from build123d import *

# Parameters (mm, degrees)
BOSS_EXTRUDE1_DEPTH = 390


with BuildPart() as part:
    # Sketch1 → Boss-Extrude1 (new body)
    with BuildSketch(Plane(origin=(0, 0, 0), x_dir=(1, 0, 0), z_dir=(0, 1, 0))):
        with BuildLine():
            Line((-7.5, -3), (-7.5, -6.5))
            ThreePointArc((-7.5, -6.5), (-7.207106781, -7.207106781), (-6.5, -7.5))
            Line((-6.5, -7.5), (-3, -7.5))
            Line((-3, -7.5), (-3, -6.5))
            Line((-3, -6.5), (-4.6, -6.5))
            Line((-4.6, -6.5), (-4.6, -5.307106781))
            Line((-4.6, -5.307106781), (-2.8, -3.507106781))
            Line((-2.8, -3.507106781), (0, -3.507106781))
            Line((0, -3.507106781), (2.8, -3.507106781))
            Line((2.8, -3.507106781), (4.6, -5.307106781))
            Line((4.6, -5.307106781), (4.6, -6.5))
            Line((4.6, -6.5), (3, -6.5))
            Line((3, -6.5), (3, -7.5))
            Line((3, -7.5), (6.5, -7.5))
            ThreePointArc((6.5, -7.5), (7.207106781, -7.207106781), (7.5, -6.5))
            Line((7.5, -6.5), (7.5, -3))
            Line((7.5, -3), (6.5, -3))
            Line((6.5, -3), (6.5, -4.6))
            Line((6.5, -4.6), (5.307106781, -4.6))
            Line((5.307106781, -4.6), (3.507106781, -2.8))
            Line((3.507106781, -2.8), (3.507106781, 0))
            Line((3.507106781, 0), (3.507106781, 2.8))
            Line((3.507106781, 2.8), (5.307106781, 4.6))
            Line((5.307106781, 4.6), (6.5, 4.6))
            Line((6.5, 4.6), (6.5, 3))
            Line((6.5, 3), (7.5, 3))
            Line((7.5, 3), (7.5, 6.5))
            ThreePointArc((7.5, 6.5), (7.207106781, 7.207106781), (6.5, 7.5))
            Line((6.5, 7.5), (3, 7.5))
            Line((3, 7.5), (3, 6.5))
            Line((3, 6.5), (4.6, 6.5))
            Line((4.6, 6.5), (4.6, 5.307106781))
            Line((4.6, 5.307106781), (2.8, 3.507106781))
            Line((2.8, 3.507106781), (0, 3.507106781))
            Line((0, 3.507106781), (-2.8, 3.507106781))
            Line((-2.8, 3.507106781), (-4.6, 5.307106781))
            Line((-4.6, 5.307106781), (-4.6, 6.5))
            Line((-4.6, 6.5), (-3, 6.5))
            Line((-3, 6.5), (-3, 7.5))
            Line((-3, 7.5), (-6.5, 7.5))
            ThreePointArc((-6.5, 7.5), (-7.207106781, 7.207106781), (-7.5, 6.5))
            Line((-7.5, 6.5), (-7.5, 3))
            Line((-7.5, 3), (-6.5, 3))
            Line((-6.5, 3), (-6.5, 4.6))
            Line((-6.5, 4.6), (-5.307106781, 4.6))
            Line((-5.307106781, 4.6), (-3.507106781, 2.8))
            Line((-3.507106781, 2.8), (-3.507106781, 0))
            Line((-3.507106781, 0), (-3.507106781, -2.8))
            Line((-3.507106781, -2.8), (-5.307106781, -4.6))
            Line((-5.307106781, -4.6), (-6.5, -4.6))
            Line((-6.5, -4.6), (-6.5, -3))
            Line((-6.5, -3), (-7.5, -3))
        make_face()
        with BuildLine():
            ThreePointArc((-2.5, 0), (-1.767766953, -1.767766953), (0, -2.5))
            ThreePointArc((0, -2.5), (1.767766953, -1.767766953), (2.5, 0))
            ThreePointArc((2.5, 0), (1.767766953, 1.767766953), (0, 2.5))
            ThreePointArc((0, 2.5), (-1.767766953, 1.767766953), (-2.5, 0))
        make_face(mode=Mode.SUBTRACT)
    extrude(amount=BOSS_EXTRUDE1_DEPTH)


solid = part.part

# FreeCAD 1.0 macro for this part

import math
import FreeCAD as App
import Part
import Sketcher
from FreeCAD import Vector

doc = App.newDocument("Part")
body = doc.addObject("PartDesign::Body", "Body")

sketch1 = body.newObject("Sketcher::SketchObject", "Sketch")
sketch1.AttachmentSupport = (doc.getObject("XZ_Plane"), [""])
sketch1.MapMode = "FlatFace"
sketch1.addGeometry(Part.LineSegment(Vector(-7.5, 3, 0), Vector(-7.5, 6.5, 0)), False)
sketch1.addGeometry(Part.ArcOfCircle(Part.Circle(Vector(-6.5, 6.5, 0), Vector(0, 0, 1), 1), math.radians(90), math.radians(180)), False)
sketch1.addGeometry(Part.LineSegment(Vector(-6.5, 7.5, 0), Vector(-3, 7.5, 0)), False)
sketch1.addGeometry(Part.LineSegment(Vector(-3, 7.5, 0), Vector(-3, 6.5, 0)), False)
sketch1.addGeometry(Part.LineSegment(Vector(-3, 6.5, 0), Vector(-4.6, 6.5, 0)), False)
sketch1.addGeometry(Part.LineSegment(Vector(-4.6, 6.5, 0), Vector(-4.6, 5.3, 0)), False)
sketch1.addGeometry(Part.LineSegment(Vector(-4.6, 5.3, 0), Vector(-2.8, 3.5, 0)), False)
sketch1.addGeometry(Part.LineSegment(Vector(-2.8, 3.5, 0), Vector(2.8, 3.5, 0)), False)
sketch1.addGeometry(Part.LineSegment(Vector(2.8, 3.5, 0), Vector(4.6, 5.3, 0)), False)
sketch1.addGeometry(Part.LineSegment(Vector(4.6, 5.3, 0), Vector(4.6, 6.5, 0)), False)
sketch1.addGeometry(Part.LineSegment(Vector(4.6, 6.5, 0), Vector(3, 6.5, 0)), False)
sketch1.addGeometry(Part.LineSegment(Vector(3, 6.5, 0), Vector(3, 7.5, 0)), False)
sketch1.addGeometry(Part.LineSegment(Vector(3, 7.5, 0), Vector(6.5, 7.5, 0)), False)
sketch1.addGeometry(Part.ArcOfCircle(Part.Circle(Vector(6.5, 6.5, 0), Vector(0, 0, 1), 1), math.radians(0), math.radians(90)), False)
sketch1.addGeometry(Part.LineSegment(Vector(7.5, 6.5, 0), Vector(7.5, 3, 0)), False)
sketch1.addGeometry(Part.LineSegment(Vector(7.5, 3, 0), Vector(6.5, 3, 0)), False)
sketch1.addGeometry(Part.LineSegment(Vector(6.5, 3, 0), Vector(6.5, 4.6, 0)), False)
sketch1.addGeometry(Part.LineSegment(Vector(6.5, 4.6, 0), Vector(5.3, 4.6, 0)), False)
sketch1.addGeometry(Part.LineSegment(Vector(5.3, 4.6, 0), Vector(3.5, 2.8, 0)), False)
sketch1.addGeometry(Part.LineSegment(Vector(3.5, 2.8, 0), Vector(3.5, -2.8, 0)), False)
sketch1.addGeometry(Part.LineSegment(Vector(3.5, -2.8, 0), Vector(5.3, -4.6, 0)), False)
sketch1.addGeometry(Part.LineSegment(Vector(5.3, -4.6, 0), Vector(6.5, -4.6, 0)), False)
sketch1.addGeometry(Part.LineSegment(Vector(6.5, -4.6, 0), Vector(6.5, -3, 0)), False)
sketch1.addGeometry(Part.LineSegment(Vector(6.5, -3, 0), Vector(7.5, -3, 0)), False)
sketch1.addGeometry(Part.LineSegment(Vector(7.5, -3, 0), Vector(7.5, -6.5, 0)), False)
sketch1.addGeometry(Part.ArcOfCircle(Part.Circle(Vector(6.5, -6.5, 0), Vector(0, 0, 1), 1), math.radians(-90), math.radians(0)), False)
sketch1.addGeometry(Part.LineSegment(Vector(6.5, -7.5, 0), Vector(3, -7.5, 0)), False)
sketch1.addGeometry(Part.LineSegment(Vector(3, -7.5, 0), Vector(3, -6.5, 0)), False)
sketch1.addGeometry(Part.LineSegment(Vector(3, -6.5, 0), Vector(4.6, -6.5, 0)), False)
sketch1.addGeometry(Part.LineSegment(Vector(4.6, -6.5, 0), Vector(4.6, -5.3, 0)), False)
sketch1.addGeometry(Part.LineSegment(Vector(4.6, -5.3, 0), Vector(2.8, -3.5, 0)), False)
sketch1.addGeometry(Part.LineSegment(Vector(2.8, -3.5, 0), Vector(-2.8, -3.5, 0)), False)
sketch1.addGeometry(Part.LineSegment(Vector(-2.8, -3.5, 0), Vector(-4.6, -5.3, 0)), False)
sketch1.addGeometry(Part.LineSegment(Vector(-4.6, -5.3, 0), Vector(-4.6, -6.5, 0)), False)
sketch1.addGeometry(Part.LineSegment(Vector(-4.6, -6.5, 0), Vector(-3, -6.5, 0)), False)
sketch1.addGeometry(Part.LineSegment(Vector(-3, -6.5, 0), Vector(-3, -7.5, 0)), False)
sketch1.addGeometry(Part.LineSegment(Vector(-3, -7.5, 0), Vector(-6.5, -7.5, 0)), False)
sketch1.addGeometry(Part.ArcOfCircle(Part.Circle(Vector(-6.5, -6.5, 0), Vector(0, 0, 1), 1), math.radians(-180), math.radians(-90)), False)
sketch1.addGeometry(Part.LineSegment(Vector(-7.5, -6.5, 0), Vector(-7.5, -3, 0)), False)
sketch1.addGeometry(Part.LineSegment(Vector(-7.5, -3, 0), Vector(-6.5, -3, 0)), False)
sketch1.addGeometry(Part.LineSegment(Vector(-6.5, -3, 0), Vector(-6.5, -4.6, 0)), False)
sketch1.addGeometry(Part.LineSegment(Vector(-6.5, -4.6, 0), Vector(-5.3, -4.6, 0)), False)
sketch1.addGeometry(Part.LineSegment(Vector(-5.3, -4.6, 0), Vector(-3.5, -2.8, 0)), False)
sketch1.addGeometry(Part.LineSegment(Vector(-3.5, -2.8, 0), Vector(-3.5, 2.8, 0)), False)
sketch1.addGeometry(Part.LineSegment(Vector(-3.5, 2.8, 0), Vector(-5.3, 4.6, 0)), False)
sketch1.addGeometry(Part.LineSegment(Vector(-5.3, 4.6, 0), Vector(-6.5, 4.6, 0)), False)
sketch1.addGeometry(Part.LineSegment(Vector(-6.5, 4.6, 0), Vector(-6.5, 3, 0)), False)
sketch1.addGeometry(Part.LineSegment(Vector(-6.5, 3, 0), Vector(-7.5, 3, 0)), False)
sketch1.addGeometry(Part.ArcOfCircle(Part.Circle(Vector(0, 0, 0), Vector(0, 0, 1), 2.5), math.radians(90), math.radians(180)), False)
sketch1.addGeometry(Part.ArcOfCircle(Part.Circle(Vector(0, 0, 0), Vector(0, 0, 1), 2.5), math.radians(180), math.radians(270)), False)
sketch1.addGeometry(Part.ArcOfCircle(Part.Circle(Vector(0, 0, 0), Vector(0, 0, 1), 2.5), math.radians(-90), math.radians(0)), False)
sketch1.addGeometry(Part.ArcOfCircle(Part.Circle(Vector(0, 0, 0), Vector(0, 0, 1), 2.5), math.radians(0), math.radians(90)), False)
sketch1.addConstraint(Sketcher.Constraint("Tangent", 0, 2, 1, 2))
sketch1.addConstraint(Sketcher.Constraint("Tangent", 1, 1, 2, 1))
sketch1.addConstraint(Sketcher.Constraint("Coincident", 2, 2, 3, 1))
sketch1.addConstraint(Sketcher.Constraint("Coincident", 3, 2, 4, 1))
sketch1.addConstraint(Sketcher.Constraint("Coincident", 4, 2, 5, 1))
sketch1.addConstraint(Sketcher.Constraint("Coincident", 5, 2, 6, 1))
sketch1.addConstraint(Sketcher.Constraint("Coincident", 6, 2, 7, 1))
sketch1.addConstraint(Sketcher.Constraint("Coincident", 7, 2, 8, 1))
sketch1.addConstraint(Sketcher.Constraint("Coincident", 8, 2, 9, 1))
sketch1.addConstraint(Sketcher.Constraint("Coincident", 9, 2, 10, 1))
sketch1.addConstraint(Sketcher.Constraint("Coincident", 10, 2, 11, 1))
sketch1.addConstraint(Sketcher.Constraint("Coincident", 11, 2, 12, 1))
sketch1.addConstraint(Sketcher.Constraint("Tangent", 12, 2, 13, 2))
sketch1.addConstraint(Sketcher.Constraint("Tangent", 13, 1, 14, 1))
sketch1.addConstraint(Sketcher.Constraint("Coincident", 14, 2, 15, 1))
sketch1.addConstraint(Sketcher.Constraint("Coincident", 15, 2, 16, 1))
sketch1.addConstraint(Sketcher.Constraint("Coincident", 16, 2, 17, 1))
sketch1.addConstraint(Sketcher.Constraint("Coincident", 17, 2, 18, 1))
sketch1.addConstraint(Sketcher.Constraint("Coincident", 18, 2, 19, 1))
sketch1.addConstraint(Sketcher.Constraint("Coincident", 19, 2, 20, 1))
sketch1.addConstraint(Sketcher.Constraint("Coincident", 20, 2, 21, 1))
sketch1.addConstraint(Sketcher.Constraint("Coincident", 21, 2, 22, 1))
sketch1.addConstraint(Sketcher.Constraint("Coincident", 22, 2, 23, 1))
sketch1.addConstraint(Sketcher.Constraint("Coincident", 23, 2, 24, 1))
sketch1.addConstraint(Sketcher.Constraint("Tangent", 24, 2, 25, 2))
sketch1.addConstraint(Sketcher.Constraint("Tangent", 25, 1, 26, 1))
sketch1.addConstraint(Sketcher.Constraint("Coincident", 26, 2, 27, 1))
sketch1.addConstraint(Sketcher.Constraint("Coincident", 27, 2, 28, 1))
sketch1.addConstraint(Sketcher.Constraint("Coincident", 28, 2, 29, 1))
sketch1.addConstraint(Sketcher.Constraint("Coincident", 29, 2, 30, 1))
sketch1.addConstraint(Sketcher.Constraint("Coincident", 30, 2, 31, 1))
sketch1.addConstraint(Sketcher.Constraint("Coincident", 31, 2, 32, 1))
sketch1.addConstraint(Sketcher.Constraint("Coincident", 32, 2, 33, 1))
sketch1.addConstraint(Sketcher.Constraint("Coincident", 33, 2, 34, 1))
sketch1.addConstraint(Sketcher.Constraint("Coincident", 34, 2, 35, 1))
sketch1.addConstraint(Sketcher.Constraint("Coincident", 35, 2, 36, 1))
sketch1.addConstraint(Sketcher.Constraint("Tangent", 36, 2, 37, 2))
sketch1.addConstraint(Sketcher.Constraint("Tangent", 37, 1, 38, 1))
sketch1.addConstraint(Sketcher.Constraint("Coincident", 38, 2, 39, 1))
sketch1.addConstraint(Sketcher.Constraint("Coincident", 39, 2, 40, 1))
sketch1.addConstraint(Sketcher.Constraint("Coincident", 40, 2, 41, 1))
sketch1.addConstraint(Sketcher.Constraint("Coincident", 41, 2, 42, 1))
sketch1.addConstraint(Sketcher.Constraint("Coincident", 42, 2, 43, 1))
sketch1.addConstraint(Sketcher.Constraint("Coincident", 43, 2, 44, 1))
sketch1.addConstraint(Sketcher.Constraint("Coincident", 44, 2, 45, 1))
sketch1.addConstraint(Sketcher.Constraint("Coincident", 45, 2, 46, 1))
sketch1.addConstraint(Sketcher.Constraint("Coincident", 46, 2, 47, 1))
sketch1.addConstraint(Sketcher.Constraint("Coincident", 47, 2, 0, 1))
sketch1.addConstraint(Sketcher.Constraint("Tangent", 48, 2, 49, 1))
sketch1.addConstraint(Sketcher.Constraint("Tangent", 49, 2, 50, 1))
sketch1.addConstraint(Sketcher.Constraint("Tangent", 50, 2, 51, 1))
sketch1.addConstraint(Sketcher.Constraint("Tangent", 51, 2, 48, 1))
sketch1.addConstraint(Sketcher.Constraint("Vertical", 0))
sketch1.addConstraint(Sketcher.Constraint("Horizontal", 2))
sketch1.addConstraint(Sketcher.Constraint("Vertical", 3))
sketch1.addConstraint(Sketcher.Constraint("Horizontal", 4))
sketch1.addConstraint(Sketcher.Constraint("Vertical", 5))
sketch1.addConstraint(Sketcher.Constraint("Horizontal", 7))
sketch1.addConstraint(Sketcher.Constraint("Vertical", 9))
sketch1.addConstraint(Sketcher.Constraint("Horizontal", 10))
sketch1.addConstraint(Sketcher.Constraint("Vertical", 11))
sketch1.addConstraint(Sketcher.Constraint("Horizontal", 12))
sketch1.addConstraint(Sketcher.Constraint("Vertical", 14))
sketch1.addConstraint(Sketcher.Constraint("Horizontal", 15))
sketch1.addConstraint(Sketcher.Constraint("Vertical", 16))
sketch1.addConstraint(Sketcher.Constraint("Horizontal", 17))
sketch1.addConstraint(Sketcher.Constraint("Vertical", 19))
sketch1.addConstraint(Sketcher.Constraint("Horizontal", 21))
sketch1.addConstraint(Sketcher.Constraint("Vertical", 22))
sketch1.addConstraint(Sketcher.Constraint("Horizontal", 23))
sketch1.addConstraint(Sketcher.Constraint("Vertical", 24))
sketch1.addConstraint(Sketcher.Constraint("Horizontal", 26))
sketch1.addConstraint(Sketcher.Constraint("Vertical", 27))
sketch1.addConstraint(Sketcher.Constraint("Horizontal", 28))
sketch1.addConstraint(Sketcher.Constraint("Vertical", 29))
sketch1.addConstraint(Sketcher.Constraint("Horizontal", 31))
sketch1.addConstraint(Sketcher.Constraint("Vertical", 33))
sketch1.addConstraint(Sketcher.Constraint("Horizontal", 34))
sketch1.addConstraint(Sketcher.Constraint("Vertical", 35))
sketch1.addConstraint(Sketcher.Constraint("Horizontal", 36))
sketch1.addConstraint(Sketcher.Constraint("Vertical", 38))
sketch1.addConstraint(Sketcher.Constraint("Horizontal", 39))
sketch1.addConstraint(Sketcher.Constraint("Vertical", 40))
sketch1.addConstraint(Sketcher.Constraint("Horizontal", 41))
sketch1.addConstraint(Sketcher.Constraint("Vertical", 43))
sketch1.addConstraint(Sketcher.Constraint("Horizontal", 45))
sketch1.addConstraint(Sketcher.Constraint("Vertical", 46))
sketch1.addConstraint(Sketcher.Constraint("Horizontal", 47))
sketch1.addConstraint(Sketcher.Constraint("Coincident", 48, 3, -1, 1))
sketch1.addConstraint(Sketcher.Constraint("Equal", 1, 13))
sketch1.addConstraint(Sketcher.Constraint("Equal", 13, 25))
sketch1.addConstraint(Sketcher.Constraint("Equal", 25, 37))
sketch1.addConstraint(Sketcher.Constraint("Equal", 48, 49))
sketch1.addConstraint(Sketcher.Constraint("Symmetric", 1, 3, 25, 3, -1, 1))
sketch1.addConstraint(Sketcher.Constraint("Symmetric", 13, 3, 37, 3, -1, 1))
sketch1.addConstraint(Sketcher.Constraint("Symmetric", 3, 2, 27, 2, -1, 1))
sketch1.addConstraint(Sketcher.Constraint("Symmetric", 5, 2, 29, 2, -1, 1))
sketch1.addConstraint(Sketcher.Constraint("Symmetric", 6, 2, 30, 2, -1, 1))
sketch1.addConstraint(Sketcher.Constraint("Symmetric", 8, 2, 32, 2, -1, 1))
sketch1.addConstraint(Sketcher.Constraint("Symmetric", 10, 2, 34, 2, -1, 1))
sketch1.addConstraint(Sketcher.Constraint("Symmetric", 15, 2, 39, 2, -1, 1))
sketch1.addConstraint(Sketcher.Constraint("Symmetric", 17, 2, 41, 2, -1, 1))
sketch1.addConstraint(Sketcher.Constraint("Symmetric", 18, 2, 42, 2, -1, 1))
sketch1.addConstraint(Sketcher.Constraint("Symmetric", 20, 2, 44, 2, -1, 1))
sketch1.addConstraint(Sketcher.Constraint("Symmetric", 22, 2, 46, 2, -1, 1))
sketch1.addConstraint(Sketcher.Constraint("Symmetric", 1, 3, 13, 3, -2))
sketch1.addConstraint(Sketcher.Constraint("Symmetric", 5, 2, 8, 2, -2))
sketch1.addConstraint(Sketcher.Constraint("Symmetric", 3, 2, 10, 2, -2))
sketch1.addConstraint(Sketcher.Constraint("Symmetric", 22, 2, 39, 2, -2))
sketch1.addConstraint(Sketcher.Constraint("Symmetric", 20, 2, 41, 2, -2))
sketch1.addConstraint(Sketcher.Constraint("PointOnObject", 48, 2, -1))
sketch1.addConstraint(Sketcher.Constraint("PointOnObject", 49, 2, -2))
sketch1.addConstraint(Sketcher.Constraint("PointOnObject", 50, 2, -1))
sketch1.addConstraint(Sketcher.Constraint("PointOnObject", 51, 2, -2))
sketch1.addConstraint(Sketcher.Constraint("Perpendicular", 6, 8))
sketch1.addConstraint(Sketcher.Constraint("Parallel", 8, 18))
sketch1.addConstraint(Sketcher.Constraint("Perpendicular", 18, 20))
sketch1.addConstraint(Sketcher.Constraint("Perpendicular", 30, 32))
sketch1.addConstraint(Sketcher.Constraint("Perpendicular", 42, 44))
sketch1.addConstraint(Sketcher.Constraint("Horizontal", 0, 2, 3, 2))
sketch1.addConstraint(Sketcher.Constraint("Horizontal", 19, 2, 42, 2))
sketch1.addConstraint(Sketcher.Constraint("Vertical", 12, 2, 15, 2))
sketch1.addConstraint(Sketcher.Constraint("Equal", 36, 0))
sketch1.addConstraint(Sketcher.Constraint("Equal", 45, 5))
sketch1.addConstraint(Sketcher.Constraint("Equal", 34, 16))
sketch1.addConstraint(Sketcher.Constraint("Equal", 31, 19))
sketch1.addConstraint(Sketcher.Constraint("Equal", 8, 18))
sketch1.addConstraint(Sketcher.Constraint("Radius", 1, 1.0))
sketch1.addConstraint(Sketcher.Constraint("Radius", 48, 2.5))
sketch1.addConstraint(Sketcher.Constraint("DistanceX", 2, 1, 2, 2, 3.5))
sketch1.addConstraint(Sketcher.Constraint("DistanceX", 4, 2, 4, 1, 1.6))
sketch1.addConstraint(Sketcher.Constraint("DistanceX", 7, 1, 7, 2, 5.6))
sketch1.addConstraint(Sketcher.Constraint("DistanceX", 2, 2, -1, 1, 3.0))
sketch1.addConstraint(Sketcher.Constraint("DistanceX", 17, 2, 17, 1, 1.192893))
pad1 = body.newObject("PartDesign::Pad", "Pad")
pad1.Profile = sketch1
pad1.Length = 390
pad1.Reversed = True

doc.recompute()
